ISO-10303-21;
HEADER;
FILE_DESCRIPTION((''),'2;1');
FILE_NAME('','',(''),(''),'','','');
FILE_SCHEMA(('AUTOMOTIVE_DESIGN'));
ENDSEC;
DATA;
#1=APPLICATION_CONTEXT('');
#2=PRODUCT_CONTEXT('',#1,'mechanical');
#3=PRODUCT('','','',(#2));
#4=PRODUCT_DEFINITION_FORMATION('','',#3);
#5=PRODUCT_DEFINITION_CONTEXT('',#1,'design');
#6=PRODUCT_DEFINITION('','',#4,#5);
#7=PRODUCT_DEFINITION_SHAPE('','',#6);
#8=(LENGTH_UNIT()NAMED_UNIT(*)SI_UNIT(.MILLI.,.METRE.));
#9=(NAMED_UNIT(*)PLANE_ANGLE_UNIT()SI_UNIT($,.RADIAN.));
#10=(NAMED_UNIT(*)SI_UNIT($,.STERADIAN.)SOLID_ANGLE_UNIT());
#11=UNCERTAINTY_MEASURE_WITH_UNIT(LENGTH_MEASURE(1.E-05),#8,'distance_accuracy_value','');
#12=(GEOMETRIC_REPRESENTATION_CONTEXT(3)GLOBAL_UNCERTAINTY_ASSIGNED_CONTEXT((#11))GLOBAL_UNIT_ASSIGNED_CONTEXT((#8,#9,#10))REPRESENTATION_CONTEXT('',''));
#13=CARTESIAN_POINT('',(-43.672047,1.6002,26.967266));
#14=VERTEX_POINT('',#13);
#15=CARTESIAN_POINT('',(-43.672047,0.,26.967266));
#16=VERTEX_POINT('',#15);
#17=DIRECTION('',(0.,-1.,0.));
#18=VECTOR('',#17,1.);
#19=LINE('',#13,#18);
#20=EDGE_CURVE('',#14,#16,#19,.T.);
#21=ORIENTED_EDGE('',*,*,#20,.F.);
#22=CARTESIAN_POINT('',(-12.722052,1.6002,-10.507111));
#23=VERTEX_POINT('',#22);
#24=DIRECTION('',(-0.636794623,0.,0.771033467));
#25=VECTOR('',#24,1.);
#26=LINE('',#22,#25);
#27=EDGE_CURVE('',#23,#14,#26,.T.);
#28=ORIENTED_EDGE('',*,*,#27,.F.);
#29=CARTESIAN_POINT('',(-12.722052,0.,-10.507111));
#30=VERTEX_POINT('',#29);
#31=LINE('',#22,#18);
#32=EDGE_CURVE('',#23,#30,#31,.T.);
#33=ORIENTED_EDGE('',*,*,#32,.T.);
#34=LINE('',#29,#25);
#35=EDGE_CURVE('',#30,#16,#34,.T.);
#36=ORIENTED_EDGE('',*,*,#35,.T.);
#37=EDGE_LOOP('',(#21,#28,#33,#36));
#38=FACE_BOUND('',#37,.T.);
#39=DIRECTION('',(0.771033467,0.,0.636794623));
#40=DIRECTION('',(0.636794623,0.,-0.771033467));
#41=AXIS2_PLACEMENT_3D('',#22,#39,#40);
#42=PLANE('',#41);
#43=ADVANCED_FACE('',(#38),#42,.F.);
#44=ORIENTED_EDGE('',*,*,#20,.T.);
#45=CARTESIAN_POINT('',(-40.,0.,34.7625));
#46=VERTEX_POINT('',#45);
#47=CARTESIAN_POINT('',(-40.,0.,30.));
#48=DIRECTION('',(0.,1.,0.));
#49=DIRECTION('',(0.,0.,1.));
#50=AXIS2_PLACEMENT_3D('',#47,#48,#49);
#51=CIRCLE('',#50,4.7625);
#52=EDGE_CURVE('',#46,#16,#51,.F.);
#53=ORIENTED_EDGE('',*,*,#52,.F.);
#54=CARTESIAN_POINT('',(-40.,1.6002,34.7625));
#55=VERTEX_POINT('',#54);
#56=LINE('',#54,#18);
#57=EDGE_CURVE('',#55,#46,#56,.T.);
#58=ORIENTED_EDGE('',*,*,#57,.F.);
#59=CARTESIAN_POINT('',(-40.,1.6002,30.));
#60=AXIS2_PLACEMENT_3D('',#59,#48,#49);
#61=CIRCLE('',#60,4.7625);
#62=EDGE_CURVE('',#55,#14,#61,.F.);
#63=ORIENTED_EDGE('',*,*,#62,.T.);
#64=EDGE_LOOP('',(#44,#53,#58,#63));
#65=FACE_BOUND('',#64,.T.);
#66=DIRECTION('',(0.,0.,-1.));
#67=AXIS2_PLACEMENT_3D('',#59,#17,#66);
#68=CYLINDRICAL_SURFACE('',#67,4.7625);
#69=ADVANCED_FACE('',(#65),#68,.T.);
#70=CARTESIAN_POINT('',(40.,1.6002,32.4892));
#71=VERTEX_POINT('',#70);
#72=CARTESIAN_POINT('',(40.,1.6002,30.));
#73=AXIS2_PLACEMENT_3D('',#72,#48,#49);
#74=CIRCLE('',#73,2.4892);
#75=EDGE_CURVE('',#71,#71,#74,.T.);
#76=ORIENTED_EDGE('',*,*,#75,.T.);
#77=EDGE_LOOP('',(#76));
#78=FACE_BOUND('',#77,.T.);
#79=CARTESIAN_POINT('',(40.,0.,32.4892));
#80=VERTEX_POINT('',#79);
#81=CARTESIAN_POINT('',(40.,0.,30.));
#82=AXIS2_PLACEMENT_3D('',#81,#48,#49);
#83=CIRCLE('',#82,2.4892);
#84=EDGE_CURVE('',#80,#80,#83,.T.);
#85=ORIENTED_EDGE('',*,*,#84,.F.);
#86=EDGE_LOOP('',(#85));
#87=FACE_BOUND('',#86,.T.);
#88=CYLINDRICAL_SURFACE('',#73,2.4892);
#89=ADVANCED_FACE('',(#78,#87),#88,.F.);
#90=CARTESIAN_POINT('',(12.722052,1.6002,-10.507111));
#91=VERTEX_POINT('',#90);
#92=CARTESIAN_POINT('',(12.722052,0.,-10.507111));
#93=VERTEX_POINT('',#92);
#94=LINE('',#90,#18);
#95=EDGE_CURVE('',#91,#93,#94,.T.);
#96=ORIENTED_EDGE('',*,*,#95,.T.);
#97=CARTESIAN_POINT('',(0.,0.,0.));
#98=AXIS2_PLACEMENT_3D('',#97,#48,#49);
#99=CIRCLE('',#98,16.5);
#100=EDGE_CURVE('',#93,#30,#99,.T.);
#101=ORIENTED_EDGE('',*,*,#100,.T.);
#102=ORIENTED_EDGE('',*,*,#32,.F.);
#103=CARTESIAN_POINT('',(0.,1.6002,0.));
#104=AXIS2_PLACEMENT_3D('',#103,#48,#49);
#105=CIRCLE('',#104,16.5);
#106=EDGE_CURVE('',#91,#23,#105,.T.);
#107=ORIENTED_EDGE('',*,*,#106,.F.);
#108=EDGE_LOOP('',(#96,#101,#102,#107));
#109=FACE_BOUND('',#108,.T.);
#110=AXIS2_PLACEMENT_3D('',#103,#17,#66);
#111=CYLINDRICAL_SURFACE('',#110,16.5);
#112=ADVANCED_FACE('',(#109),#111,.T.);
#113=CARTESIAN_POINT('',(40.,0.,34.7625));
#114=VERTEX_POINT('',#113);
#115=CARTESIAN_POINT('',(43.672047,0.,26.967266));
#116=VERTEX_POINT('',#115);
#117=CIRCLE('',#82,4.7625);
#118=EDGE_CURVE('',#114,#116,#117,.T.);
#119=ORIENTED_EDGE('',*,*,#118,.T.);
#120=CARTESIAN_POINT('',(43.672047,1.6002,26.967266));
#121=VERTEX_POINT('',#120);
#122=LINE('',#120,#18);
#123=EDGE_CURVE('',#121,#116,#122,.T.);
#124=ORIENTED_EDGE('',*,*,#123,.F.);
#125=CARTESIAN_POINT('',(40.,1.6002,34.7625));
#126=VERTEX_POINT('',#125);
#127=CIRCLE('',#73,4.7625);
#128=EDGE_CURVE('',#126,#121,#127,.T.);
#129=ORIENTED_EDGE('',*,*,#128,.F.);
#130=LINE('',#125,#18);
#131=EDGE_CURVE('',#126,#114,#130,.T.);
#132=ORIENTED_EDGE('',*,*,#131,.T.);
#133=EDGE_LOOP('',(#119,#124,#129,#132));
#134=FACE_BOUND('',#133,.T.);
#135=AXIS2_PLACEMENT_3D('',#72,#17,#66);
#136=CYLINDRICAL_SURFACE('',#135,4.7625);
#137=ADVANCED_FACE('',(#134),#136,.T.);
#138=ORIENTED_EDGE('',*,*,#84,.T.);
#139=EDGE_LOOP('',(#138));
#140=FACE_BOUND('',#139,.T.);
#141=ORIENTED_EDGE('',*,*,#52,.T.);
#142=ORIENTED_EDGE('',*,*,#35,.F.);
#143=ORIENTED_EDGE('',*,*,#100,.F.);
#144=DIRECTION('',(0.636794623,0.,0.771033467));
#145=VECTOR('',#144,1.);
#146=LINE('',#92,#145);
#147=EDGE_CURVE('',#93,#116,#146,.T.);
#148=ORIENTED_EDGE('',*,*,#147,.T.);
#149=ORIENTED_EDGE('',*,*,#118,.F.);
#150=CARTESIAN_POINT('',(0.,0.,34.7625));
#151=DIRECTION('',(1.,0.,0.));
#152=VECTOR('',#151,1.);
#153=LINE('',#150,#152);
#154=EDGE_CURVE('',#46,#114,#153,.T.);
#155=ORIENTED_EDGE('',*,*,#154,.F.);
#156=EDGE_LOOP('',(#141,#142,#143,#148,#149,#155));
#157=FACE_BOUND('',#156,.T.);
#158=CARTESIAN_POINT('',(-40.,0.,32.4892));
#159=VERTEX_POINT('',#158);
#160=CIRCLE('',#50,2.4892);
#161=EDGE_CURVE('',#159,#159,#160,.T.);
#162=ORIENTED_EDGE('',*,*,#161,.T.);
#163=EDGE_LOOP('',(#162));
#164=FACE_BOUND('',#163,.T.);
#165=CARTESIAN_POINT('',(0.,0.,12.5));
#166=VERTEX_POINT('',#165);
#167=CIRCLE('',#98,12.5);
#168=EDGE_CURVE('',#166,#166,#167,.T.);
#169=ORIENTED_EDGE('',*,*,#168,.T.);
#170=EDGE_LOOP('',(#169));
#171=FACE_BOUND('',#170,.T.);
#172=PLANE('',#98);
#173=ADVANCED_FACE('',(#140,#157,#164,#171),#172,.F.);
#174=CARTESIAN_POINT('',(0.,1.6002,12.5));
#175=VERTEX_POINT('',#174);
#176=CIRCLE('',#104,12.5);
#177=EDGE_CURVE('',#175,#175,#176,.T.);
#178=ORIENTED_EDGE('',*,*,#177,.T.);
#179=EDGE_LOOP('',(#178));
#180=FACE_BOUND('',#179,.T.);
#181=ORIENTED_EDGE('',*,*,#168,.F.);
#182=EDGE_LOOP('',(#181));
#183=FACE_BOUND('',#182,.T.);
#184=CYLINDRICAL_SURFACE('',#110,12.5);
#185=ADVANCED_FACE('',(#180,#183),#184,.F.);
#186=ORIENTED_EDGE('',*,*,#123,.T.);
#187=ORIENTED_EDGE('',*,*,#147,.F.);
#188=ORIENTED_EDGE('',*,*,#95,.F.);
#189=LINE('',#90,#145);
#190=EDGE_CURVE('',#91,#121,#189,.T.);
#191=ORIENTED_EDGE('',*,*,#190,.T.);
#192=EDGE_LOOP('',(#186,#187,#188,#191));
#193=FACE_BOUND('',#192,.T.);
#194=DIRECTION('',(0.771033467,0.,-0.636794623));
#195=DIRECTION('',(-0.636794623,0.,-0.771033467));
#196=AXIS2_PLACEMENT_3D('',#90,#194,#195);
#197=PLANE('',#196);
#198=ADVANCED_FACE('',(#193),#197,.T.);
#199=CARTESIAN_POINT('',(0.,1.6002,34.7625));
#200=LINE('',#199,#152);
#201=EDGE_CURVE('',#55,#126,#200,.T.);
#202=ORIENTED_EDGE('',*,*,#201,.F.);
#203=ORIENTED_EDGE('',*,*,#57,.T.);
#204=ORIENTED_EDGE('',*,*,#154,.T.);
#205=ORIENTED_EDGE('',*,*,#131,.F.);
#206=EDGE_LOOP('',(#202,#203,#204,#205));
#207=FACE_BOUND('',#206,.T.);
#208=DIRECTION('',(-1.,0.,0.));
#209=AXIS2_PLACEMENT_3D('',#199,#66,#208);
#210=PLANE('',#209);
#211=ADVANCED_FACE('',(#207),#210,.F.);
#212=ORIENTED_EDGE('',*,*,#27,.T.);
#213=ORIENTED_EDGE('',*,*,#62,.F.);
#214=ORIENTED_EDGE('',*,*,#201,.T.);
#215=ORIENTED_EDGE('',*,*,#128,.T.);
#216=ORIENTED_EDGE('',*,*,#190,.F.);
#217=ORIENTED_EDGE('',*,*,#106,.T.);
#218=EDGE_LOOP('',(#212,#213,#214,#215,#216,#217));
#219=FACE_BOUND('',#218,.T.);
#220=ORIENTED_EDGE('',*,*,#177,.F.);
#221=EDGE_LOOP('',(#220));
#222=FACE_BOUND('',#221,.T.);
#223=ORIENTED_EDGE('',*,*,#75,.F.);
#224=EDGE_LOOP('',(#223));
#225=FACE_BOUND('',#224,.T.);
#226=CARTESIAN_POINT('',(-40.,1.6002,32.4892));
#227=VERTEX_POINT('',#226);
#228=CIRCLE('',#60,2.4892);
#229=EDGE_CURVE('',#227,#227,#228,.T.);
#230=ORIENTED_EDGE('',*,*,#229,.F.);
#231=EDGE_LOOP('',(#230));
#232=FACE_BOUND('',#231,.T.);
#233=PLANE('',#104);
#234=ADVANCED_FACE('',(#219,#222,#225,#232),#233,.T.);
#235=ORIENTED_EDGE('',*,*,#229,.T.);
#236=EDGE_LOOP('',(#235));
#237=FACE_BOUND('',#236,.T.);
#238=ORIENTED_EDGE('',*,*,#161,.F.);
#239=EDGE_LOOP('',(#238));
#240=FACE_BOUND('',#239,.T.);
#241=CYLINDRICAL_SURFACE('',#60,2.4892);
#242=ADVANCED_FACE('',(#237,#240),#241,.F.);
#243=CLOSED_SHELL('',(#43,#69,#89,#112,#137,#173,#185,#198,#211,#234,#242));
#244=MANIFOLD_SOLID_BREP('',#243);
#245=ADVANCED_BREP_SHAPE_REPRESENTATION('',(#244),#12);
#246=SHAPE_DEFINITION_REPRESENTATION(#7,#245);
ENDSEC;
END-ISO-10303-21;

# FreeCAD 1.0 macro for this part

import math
import FreeCAD as App
import Part
import Sketcher

doc = App.newDocument("Part")
body = doc.addObject("PartDesign::Body", "Body")

# Sketch on XZ plane
sketch1 = body.newObject("Sketcher::SketchObject", "Sketch")
sketch1.AttachmentSupport = (doc.getObject("XZ_Plane"), [""])
sketch1.MapMode = "FlatFace"
sketch1.addGeometry([
    Part.ArcOfCircle(Part.Circle(App.Vector(-40, 30, 0), App.Vector(0, 0, 1), 4.8), math.radians(90), math.radians(220)),  # 0
    Part.LineSegment(App.Vector(-40, 34.8, 0), App.Vector(40, 34.8, 0)),  # 1
    Part.ArcOfCircle(Part.Circle(App.Vector(40, 30, 0), App.Vector(0, 0, 1), 4.8), math.radians(-40), math.radians(90)),  # 2
    Part.LineSegment(App.Vector(43.7, 27, 0), App.Vector(12.7, -10.5, 0)),  # 3
    Part.ArcOfCircle(Part.Circle(App.Vector(0, 0, 0), App.Vector(0, 0, 1), 16.5), math.radians(-140), math.radians(-40)),  # 4
    Part.LineSegment(App.Vector(-12.7, -10.5, 0), App.Vector(-43.7, 27, 0)),  # 5
    Part.Circle(App.Vector(0, 0, 0), App.Vector(0, 0, 1), 12.5),  # 6
], False)
sketch1.addConstraint([
    Sketcher.Constraint("Tangent", 0, 1, 1, 1),
    Sketcher.Constraint("Tangent", 1, 2, 2, 2),
    Sketcher.Constraint("Tangent", 2, 1, 3, 1),
    Sketcher.Constraint("Tangent", 3, 2, 4, 2),
    Sketcher.Constraint("Tangent", 4, 1, 5, 1),
    Sketcher.Constraint("Tangent", 5, 2, 0, 2),
    Sketcher.Constraint("Horizontal", 1),
    Sketcher.Constraint("Coincident", 4, 3, -1, 1),
    Sketcher.Constraint("Coincident", 6, 3, -1, 1),
    Sketcher.Constraint("Equal", 0, 2),
    Sketcher.Constraint("Horizontal", 3, 2, 4, 1),
    Sketcher.Constraint("Diameter", 6, 25.0),
    Sketcher.Constraint("Radius", 4, 16.5),
    Sketcher.Constraint("DistanceX", 1, 1, 1, 2, 80.0),
    Sketcher.Constraint("DistanceY", -1, 1, 0, 3, 30.0),
    Sketcher.Constraint("Radius", 0, 4.7625),
])
pad1 = body.newObject("PartDesign::Pad", "Pad")
pad1.Profile = sketch1
pad1.Length = 1.6002
pad1.Reversed = True

# Sketch on XZ plane
sketch2 = body.newObject("Sketcher::SketchObject", "Sketch001")
sketch2.AttachmentSupport = (doc.getObject("XZ_Plane"), [""])
sketch2.MapMode = "FlatFace"
sketch2.AttachmentOffset = App.Placement(App.Vector(0, 0, -1.6002), App.Rotation())
sketch2.addGeometry([
    Part.Circle(App.Vector(40, 30, 0), App.Vector(0, 0, 1), 2.5),
    Part.Circle(App.Vector(-40, 30, 0), App.Vector(0, 0, 1), 2.5),
], False)
sketch2.addConstraint([
    Sketcher.Constraint("Equal", 0, 1),
    Sketcher.Constraint("Symmetric", 0, 3, 1, 3, -2),
    Sketcher.Constraint("DistanceX", -1, 1, 0, 3, 40.0),
    Sketcher.Constraint("DistanceY", -1, 1, 0, 3, 30.0),
    Sketcher.Constraint("Diameter", 0, 4.9784),
])
doc.recompute()
hole = body.newObject("PartDesign::Hole", "Hole")
hole.Profile = sketch2
hole.ThreadType = "None"
hole.Diameter = 4.9784
hole.DepthType = "Dimension"
hole.Depth = 172.97
hole.DrillPoint = "Angled"
hole.DrillPointAngle = 118
hole.Reversed = True

doc.recompute()
